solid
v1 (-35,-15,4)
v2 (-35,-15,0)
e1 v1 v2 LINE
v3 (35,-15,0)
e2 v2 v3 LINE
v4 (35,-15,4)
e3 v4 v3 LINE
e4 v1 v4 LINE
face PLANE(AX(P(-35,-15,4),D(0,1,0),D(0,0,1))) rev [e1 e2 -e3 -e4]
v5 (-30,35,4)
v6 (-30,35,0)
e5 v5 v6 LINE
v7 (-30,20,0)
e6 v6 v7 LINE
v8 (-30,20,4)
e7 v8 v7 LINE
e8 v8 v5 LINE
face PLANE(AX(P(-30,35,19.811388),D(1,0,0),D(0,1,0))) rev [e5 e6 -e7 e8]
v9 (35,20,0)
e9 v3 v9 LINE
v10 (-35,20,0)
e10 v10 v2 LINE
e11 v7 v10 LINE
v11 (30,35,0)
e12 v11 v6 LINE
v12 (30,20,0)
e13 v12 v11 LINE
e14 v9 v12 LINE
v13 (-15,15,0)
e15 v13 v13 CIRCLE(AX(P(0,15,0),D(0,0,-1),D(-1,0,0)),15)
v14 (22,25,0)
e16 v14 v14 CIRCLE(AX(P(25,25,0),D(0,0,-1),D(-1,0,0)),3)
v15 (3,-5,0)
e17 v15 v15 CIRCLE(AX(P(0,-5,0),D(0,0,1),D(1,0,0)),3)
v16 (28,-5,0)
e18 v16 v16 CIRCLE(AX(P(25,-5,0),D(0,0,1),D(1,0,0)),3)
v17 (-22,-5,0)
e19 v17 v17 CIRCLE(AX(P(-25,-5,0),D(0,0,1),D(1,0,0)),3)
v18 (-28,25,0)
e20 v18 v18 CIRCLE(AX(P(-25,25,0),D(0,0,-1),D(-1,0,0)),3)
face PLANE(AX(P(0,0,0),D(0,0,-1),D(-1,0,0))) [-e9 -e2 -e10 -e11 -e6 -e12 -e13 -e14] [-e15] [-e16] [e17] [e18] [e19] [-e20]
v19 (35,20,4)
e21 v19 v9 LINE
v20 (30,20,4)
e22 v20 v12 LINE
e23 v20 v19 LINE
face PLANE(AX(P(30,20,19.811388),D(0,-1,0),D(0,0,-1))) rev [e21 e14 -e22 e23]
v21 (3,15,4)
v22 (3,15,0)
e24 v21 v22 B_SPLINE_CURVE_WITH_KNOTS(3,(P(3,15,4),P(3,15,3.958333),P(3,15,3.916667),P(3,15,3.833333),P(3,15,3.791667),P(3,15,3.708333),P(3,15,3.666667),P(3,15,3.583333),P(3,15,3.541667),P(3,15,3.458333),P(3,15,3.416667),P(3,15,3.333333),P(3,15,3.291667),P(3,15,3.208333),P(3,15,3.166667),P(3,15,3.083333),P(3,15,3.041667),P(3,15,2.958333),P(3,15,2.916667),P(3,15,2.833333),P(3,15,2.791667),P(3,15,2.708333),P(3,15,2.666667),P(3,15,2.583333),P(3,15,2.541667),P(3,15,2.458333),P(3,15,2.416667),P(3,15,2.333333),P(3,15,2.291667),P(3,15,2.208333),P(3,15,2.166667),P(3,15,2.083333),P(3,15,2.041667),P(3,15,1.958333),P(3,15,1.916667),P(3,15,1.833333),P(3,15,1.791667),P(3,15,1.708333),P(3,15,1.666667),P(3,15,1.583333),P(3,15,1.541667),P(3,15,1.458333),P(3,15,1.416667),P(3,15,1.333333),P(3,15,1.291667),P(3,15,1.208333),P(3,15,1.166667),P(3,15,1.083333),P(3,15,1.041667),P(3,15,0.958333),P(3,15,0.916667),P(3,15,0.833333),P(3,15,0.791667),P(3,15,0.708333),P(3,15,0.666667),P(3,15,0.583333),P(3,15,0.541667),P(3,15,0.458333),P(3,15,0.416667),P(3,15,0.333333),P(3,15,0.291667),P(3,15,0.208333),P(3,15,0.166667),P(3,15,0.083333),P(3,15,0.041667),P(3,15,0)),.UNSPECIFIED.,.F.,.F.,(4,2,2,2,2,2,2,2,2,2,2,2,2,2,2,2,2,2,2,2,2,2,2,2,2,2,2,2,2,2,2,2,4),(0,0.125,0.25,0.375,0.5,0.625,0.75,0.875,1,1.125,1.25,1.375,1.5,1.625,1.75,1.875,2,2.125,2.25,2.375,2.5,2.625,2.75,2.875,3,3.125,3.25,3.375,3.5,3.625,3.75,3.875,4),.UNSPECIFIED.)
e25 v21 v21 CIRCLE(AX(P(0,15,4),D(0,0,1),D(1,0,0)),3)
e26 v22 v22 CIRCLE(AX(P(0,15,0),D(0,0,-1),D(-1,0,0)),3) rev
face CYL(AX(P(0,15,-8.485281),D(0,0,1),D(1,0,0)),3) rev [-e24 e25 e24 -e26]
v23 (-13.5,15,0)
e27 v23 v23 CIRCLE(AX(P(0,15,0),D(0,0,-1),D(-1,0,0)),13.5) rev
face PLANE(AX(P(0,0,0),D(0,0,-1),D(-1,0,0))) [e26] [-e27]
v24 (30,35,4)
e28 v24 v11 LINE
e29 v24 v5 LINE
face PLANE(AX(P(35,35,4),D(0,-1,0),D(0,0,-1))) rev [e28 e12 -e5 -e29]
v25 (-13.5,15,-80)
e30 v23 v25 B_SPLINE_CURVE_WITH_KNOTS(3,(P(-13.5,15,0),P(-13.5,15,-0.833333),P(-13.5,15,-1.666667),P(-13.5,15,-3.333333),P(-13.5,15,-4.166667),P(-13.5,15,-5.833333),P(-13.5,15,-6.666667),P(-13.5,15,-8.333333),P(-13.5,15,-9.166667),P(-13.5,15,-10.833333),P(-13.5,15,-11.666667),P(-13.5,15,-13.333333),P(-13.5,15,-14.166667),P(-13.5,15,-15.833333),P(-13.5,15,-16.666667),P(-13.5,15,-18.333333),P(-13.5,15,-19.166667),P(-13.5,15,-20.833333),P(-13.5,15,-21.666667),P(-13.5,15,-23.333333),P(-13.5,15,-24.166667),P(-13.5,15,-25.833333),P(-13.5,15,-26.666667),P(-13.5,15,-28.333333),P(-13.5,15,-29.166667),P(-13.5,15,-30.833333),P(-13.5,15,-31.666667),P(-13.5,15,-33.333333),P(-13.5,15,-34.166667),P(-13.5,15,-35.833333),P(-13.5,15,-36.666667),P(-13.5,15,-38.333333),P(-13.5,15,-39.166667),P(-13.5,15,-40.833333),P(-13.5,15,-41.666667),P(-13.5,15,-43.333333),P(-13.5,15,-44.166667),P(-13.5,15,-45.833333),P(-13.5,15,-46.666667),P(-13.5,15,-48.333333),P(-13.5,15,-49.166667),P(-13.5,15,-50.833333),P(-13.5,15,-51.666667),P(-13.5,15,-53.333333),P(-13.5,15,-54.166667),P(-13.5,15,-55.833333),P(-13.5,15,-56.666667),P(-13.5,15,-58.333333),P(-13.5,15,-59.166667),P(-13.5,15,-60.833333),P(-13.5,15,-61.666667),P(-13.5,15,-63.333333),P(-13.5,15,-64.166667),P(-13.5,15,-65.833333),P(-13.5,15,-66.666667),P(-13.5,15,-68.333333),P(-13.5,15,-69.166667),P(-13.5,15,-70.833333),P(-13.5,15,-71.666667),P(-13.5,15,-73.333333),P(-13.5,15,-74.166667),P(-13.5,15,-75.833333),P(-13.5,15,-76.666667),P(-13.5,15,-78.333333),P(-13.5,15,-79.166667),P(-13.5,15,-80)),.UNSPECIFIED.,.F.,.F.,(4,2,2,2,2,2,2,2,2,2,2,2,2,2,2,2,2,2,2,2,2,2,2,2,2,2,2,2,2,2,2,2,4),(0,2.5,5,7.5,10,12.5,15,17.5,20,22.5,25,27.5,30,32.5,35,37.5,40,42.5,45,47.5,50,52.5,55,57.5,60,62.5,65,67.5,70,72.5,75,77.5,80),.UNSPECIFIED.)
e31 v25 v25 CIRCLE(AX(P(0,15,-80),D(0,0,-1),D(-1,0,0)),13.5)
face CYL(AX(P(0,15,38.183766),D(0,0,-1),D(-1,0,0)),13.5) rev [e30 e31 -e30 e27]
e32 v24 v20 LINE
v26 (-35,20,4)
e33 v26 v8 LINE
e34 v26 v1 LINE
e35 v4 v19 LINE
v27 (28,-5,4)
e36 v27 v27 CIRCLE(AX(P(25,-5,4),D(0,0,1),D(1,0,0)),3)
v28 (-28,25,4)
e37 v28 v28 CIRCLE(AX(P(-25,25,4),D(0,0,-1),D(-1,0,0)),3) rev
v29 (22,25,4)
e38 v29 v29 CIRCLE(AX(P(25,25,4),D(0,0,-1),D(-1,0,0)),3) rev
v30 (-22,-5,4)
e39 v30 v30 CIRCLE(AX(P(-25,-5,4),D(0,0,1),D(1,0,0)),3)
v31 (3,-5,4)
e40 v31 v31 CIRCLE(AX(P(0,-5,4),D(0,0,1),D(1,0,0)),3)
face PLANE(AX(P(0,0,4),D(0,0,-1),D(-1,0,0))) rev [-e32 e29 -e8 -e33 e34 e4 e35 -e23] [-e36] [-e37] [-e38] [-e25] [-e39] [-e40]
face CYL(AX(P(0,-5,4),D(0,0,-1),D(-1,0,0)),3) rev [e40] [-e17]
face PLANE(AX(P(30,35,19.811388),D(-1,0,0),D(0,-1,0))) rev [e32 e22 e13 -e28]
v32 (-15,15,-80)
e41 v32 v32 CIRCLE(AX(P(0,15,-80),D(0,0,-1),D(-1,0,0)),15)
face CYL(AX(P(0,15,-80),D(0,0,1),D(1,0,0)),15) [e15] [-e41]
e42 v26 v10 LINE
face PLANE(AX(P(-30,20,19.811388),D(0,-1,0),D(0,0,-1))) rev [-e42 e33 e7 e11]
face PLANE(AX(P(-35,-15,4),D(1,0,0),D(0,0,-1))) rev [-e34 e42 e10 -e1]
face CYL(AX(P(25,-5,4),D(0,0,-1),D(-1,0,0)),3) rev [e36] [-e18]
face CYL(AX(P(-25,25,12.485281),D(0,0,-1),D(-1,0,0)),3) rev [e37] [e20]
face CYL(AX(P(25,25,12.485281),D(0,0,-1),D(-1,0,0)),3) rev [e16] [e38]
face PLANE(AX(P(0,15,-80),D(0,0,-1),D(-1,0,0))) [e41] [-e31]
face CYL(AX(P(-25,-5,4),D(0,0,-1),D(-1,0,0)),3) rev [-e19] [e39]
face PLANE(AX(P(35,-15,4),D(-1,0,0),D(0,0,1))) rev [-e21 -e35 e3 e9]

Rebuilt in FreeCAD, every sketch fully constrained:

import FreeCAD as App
import Part
import Sketcher


def add_polygon(sketch, points):
    """Adds a closed chain of lines whose ends are joined by coincident constraints."""
    first, n = sketch.GeometryCount, len(points)
    for a, b in zip(points, points[1:] + points[:1]):
        sketch.addGeometry(Part.LineSegment(App.Vector(*a, 0), App.Vector(*b, 0)), False)
    for i in range(n):
        sketch.addConstraint(Sketcher.Constraint("Coincident", first + i, 2, first + (i + 1) % n, 1))

doc = App.newDocument("Part")
params = doc.addObject("Spreadsheet::Sheet", "Params")
for row, (alias, value) in enumerate([
    ("sketch1_diameter", "6 mm"),
    ("sketch1_width", "70 mm"),
    ("sketch1_height", "30 mm"),
    ("pad1_length", "4 mm"),
    ("sketch2_width", "70 mm"),
    ("sketch2_height", "20 mm"),
    ("pad2_length", "4 mm"),
    ("sketch3_diameter", "30 mm"),
    ("pad3_length", "80 mm"),
    ("sketch4_diameter", "6 mm"),
    ("pocket1_length", "4 mm"),
    ("sketch5_diameter", "27 mm"),
    ("pocket2_length", "80 mm"),
    ("sketch6_diameter", "6 mm"),
    ("pocket3_length", "4 mm"),
    ("sketch7_width", "5 mm"),
    ("sketch7_height", "15 mm"),
    ("pocket4_length", "4 mm"),
], start=1):
    params.set(f"A{row}", alias)
    params.set(f"B{row}", "=" + value)
    params.setAlias(f"B{row}", alias)

body = doc.addObject("PartDesign::Body", "Body")

sketch1 = body.newObject("Sketcher::SketchObject", "Sketch")
sketch1.AttachmentSupport = (doc.getObject("XY_Plane"), [""])
sketch1.MapMode = "FlatFace"
add_polygon(sketch1, [(-35, 15), (-35, -15), (35, -15), (35, 15)])
sketch1.addGeometry(Part.Circle(App.Vector(-25, -5, 0), App.Vector(0, 0, 1), 3), False)
sketch1.addGeometry(Part.Circle(App.Vector(0, -5, 0), App.Vector(0, 0, 1), 3), False)
sketch1.addGeometry(Part.Circle(App.Vector(25, -5, 0), App.Vector(0, 0, 1), 3), False)
sketch1.addConstraint([
    Sketcher.Constraint("Vertical", 0),
    Sketcher.Constraint("Horizontal", 1),
    Sketcher.Constraint("Vertical", 2),
    Sketcher.Constraint("Horizontal", 3),
    Sketcher.Constraint("Equal", 4, 5),
    Sketcher.Constraint("Equal", 5, 6),
    Sketcher.Constraint("Symmetric", 0, 2, 2, 2, -1, 1),
    Sketcher.Constraint("Symmetric", 4, 3, 6, 3, -2),
    Sketcher.Constraint("PointOnObject", 5, 3, -2),
    Sketcher.Constraint("Horizontal", 4, 3, 5, 3),
    Sketcher.Constraint("Diameter", 4, 6.0),
    Sketcher.Constraint("DistanceX", 1, 1, 1, 2, 70.0),
    Sketcher.Constraint("DistanceY", 0, 2, 0, 1, 30.0),
    Sketcher.Constraint("DistanceX", 4, 3, -1, 1, 25.0),
    Sketcher.Constraint("DistanceY", 4, 3, -1, 1, 5.0),
])
sketch1.setExpression("Constraints[14]", "Params.sketch1_diameter")
sketch1.setExpression("Constraints[15]", "Params.sketch1_width")
sketch1.setExpression("Constraints[16]", "Params.sketch1_height")
pad1 = body.newObject("PartDesign::Pad", "Pad")
pad1.Profile = sketch1
pad1.setExpression("Length", "Params.pad1_length")

sketch2 = body.newObject("Sketcher::SketchObject", "Sketch001")
sketch2.AttachmentSupport = (doc.getObject("XY_Plane"), [""])
sketch2.MapMode = "FlatFace"
add_polygon(sketch2, [(-35, 35), (-35, 15), (35, 15), (35, 35)])
sketch2.addConstraint([
    Sketcher.Constraint("Vertical", 0),
    Sketcher.Constraint("Horizontal", 1),
    Sketcher.Constraint("Vertical", 2),
    Sketcher.Constraint("Horizontal", 3),
    Sketcher.Constraint("DistanceX", 1, 1, 1, 2, 70.0),
    Sketcher.Constraint("DistanceY", 0, 2, 0, 1, 20.0),
    Sketcher.Constraint("DistanceX", 0, 2, -1, 1, 35.0),
    Sketcher.Constraint("DistanceY", -1, 1, 0, 2, 15.0),
])
sketch2.setExpression("Constraints[8]", "Params.sketch2_width")
sketch2.setExpression("Constraints[9]", "Params.sketch2_height")
pad2 = body.newObject("PartDesign::Pad", "Pad001")
pad2.Profile = sketch2
pad2.setExpression("Length", "Params.pad2_length")

sketch3 = body.newObject("Sketcher::SketchObject", "Sketch002")
sketch3.AttachmentSupport = (doc.getObject("XY_Plane"), [""])
sketch3.MapMode = "FlatFace"
sketch3.addGeometry(Part.Circle(App.Vector(0, 15, 0), App.Vector(0, 0, 1), 15), False)
sketch3.addConstraint([
    Sketcher.Constraint("PointOnObject", 0, 3, -2),
    Sketcher.Constraint("Diameter", 0, 30.0),
    Sketcher.Constraint("DistanceY", -1, 1, 0, 3, 15.0),
])
sketch3.setExpression("Constraints[1]", "Params.sketch3_diameter")
pad3 = body.newObject("PartDesign::Pad", "Pad002")
pad3.Profile = sketch3
pad3.setExpression("Length", "Params.pad3_length")
pad3.Reversed = True

sketch4 = body.newObject("Sketcher::SketchObject", "Sketch003")
sketch4.AttachmentSupport = (doc.getObject("XY_Plane"), [""])
sketch4.MapMode = "FlatFace"
sketch4.addGeometry([
    Part.Circle(App.Vector(25, 25, 0), App.Vector(0, 0, 1), 3),
    Part.Circle(App.Vector(-25, 25, 0), App.Vector(0, 0, 1), 3),
], False)
sketch4.addConstraint([
    Sketcher.Constraint("Equal", 0, 1),
    Sketcher.Constraint("Symmetric", 0, 3, 1, 3, -2),
    Sketcher.Constraint("Diameter", 0, 6.0),
    Sketcher.Constraint("DistanceX", -1, 1, 0, 3, 25.0),
    Sketcher.Constraint("DistanceY", -1, 1, 0, 3, 25.0),
])
sketch4.setExpression("Constraints[2]", "Params.sketch4_diameter")
pocket1 = body.newObject("PartDesign::Pocket", "Pocket")
pocket1.Profile = sketch4
pocket1.setExpression("Length", "Params.pocket1_length")
pocket1.Reversed = True

sketch5 = body.newObject("Sketcher::SketchObject", "Sketch004")
sketch5.AttachmentSupport = (doc.getObject("XY_Plane"), [""])
sketch5.MapMode = "FlatFace"
sketch5.AttachmentOffset = App.Placement(App.Vector(0, 0, -80), App.Rotation())
sketch5.addGeometry(Part.Circle(App.Vector(0, 15, 0), App.Vector(0, 0, 1), 14), False)
sketch5.addConstraint([
    Sketcher.Constraint("PointOnObject", 0, 3, -2),
    Sketcher.Constraint("Diameter", 0, 27.0),
    Sketcher.Constraint("DistanceY", -1, 1, 0, 3, 15.0),
])
sketch5.setExpression("Constraints[1]", "Params.sketch5_diameter")
pocket2 = body.newObject("PartDesign::Pocket", "Pocket001")
pocket2.Profile = sketch5
pocket2.setExpression("Length", "Params.pocket2_length")
pocket2.Reversed = True

sketch6 = body.newObject("Sketcher::SketchObject", "Sketch005")
sketch6.AttachmentSupport = (doc.getObject("XY_Plane"), [""])
sketch6.MapMode = "FlatFace"
sketch6.AttachmentOffset = App.Placement(App.Vector(0, 0, 4), App.Rotation())
sketch6.addGeometry(Part.Circle(App.Vector(0, 15, 0), App.Vector(0, 0, 1), 3), False)
sketch6.addConstraint([
    Sketcher.Constraint("PointOnObject", 0, 3, -2),
    Sketcher.Constraint("Diameter", 0, 6.0),
    Sketcher.Constraint("DistanceY", -1, 1, 0, 3, 15.0),
])
sketch6.setExpression("Constraints[1]", "Params.sketch6_diameter")
pocket3 = body.newObject("PartDesign::Pocket", "Pocket002")
pocket3.Profile = sketch6
pocket3.setExpression("Length", "Params.pocket3_length")

sketch7 = body.newObject("Sketcher::SketchObject", "Sketch006")
sketch7.AttachmentSupport = (doc.getObject("XY_Plane"), [""])
sketch7.MapMode = "FlatFace"
add_polygon(sketch7, [(35, 35), (35, 20), (30, 20), (30, 35)])
add_polygon(sketch7, [(-30, 35), (-30, 20), (-35, 20), (-35, 35)])
sketch7.addConstraint([
    Sketcher.Constraint("Vertical", 0),
    Sketcher.Constraint("Horizontal", 1),
    Sketcher.Constraint("Vertical", 2),
    Sketcher.Constraint("Horizontal", 3),
    Sketcher.Constraint("Vertical", 4),
    Sketcher.Constraint("Horizontal", 5),
    Sketcher.Constraint("Vertical", 6),
    Sketcher.Constraint("Horizontal", 7),
    Sketcher.Constraint("Symmetric", 1, 2, 4, 2, -2),
    Sketcher.Constraint("Symmetric", 3, 2, 6, 2, -2),
    Sketcher.Constraint("DistanceX", 1, 2, 1, 1, 5.0),
    Sketcher.Constraint("DistanceY", 0, 2, 0, 1, 15.0),
    Sketcher.Constraint("DistanceX", -1, 1, 0, 2, 35.0),
    Sketcher.Constraint("DistanceY", -1, 1, 0, 2, 20.0),
])
sketch7.setExpression("Constraints[18]", "Params.sketch7_width")
sketch7.setExpression("Constraints[19]", "Params.sketch7_height")
pocket4 = body.newObject("PartDesign::Pocket", "Pocket003")
pocket4.Profile = sketch7
pocket4.setExpression("Length", "Params.pocket4_length")
pocket4.Reversed = True

doc.recompute()
